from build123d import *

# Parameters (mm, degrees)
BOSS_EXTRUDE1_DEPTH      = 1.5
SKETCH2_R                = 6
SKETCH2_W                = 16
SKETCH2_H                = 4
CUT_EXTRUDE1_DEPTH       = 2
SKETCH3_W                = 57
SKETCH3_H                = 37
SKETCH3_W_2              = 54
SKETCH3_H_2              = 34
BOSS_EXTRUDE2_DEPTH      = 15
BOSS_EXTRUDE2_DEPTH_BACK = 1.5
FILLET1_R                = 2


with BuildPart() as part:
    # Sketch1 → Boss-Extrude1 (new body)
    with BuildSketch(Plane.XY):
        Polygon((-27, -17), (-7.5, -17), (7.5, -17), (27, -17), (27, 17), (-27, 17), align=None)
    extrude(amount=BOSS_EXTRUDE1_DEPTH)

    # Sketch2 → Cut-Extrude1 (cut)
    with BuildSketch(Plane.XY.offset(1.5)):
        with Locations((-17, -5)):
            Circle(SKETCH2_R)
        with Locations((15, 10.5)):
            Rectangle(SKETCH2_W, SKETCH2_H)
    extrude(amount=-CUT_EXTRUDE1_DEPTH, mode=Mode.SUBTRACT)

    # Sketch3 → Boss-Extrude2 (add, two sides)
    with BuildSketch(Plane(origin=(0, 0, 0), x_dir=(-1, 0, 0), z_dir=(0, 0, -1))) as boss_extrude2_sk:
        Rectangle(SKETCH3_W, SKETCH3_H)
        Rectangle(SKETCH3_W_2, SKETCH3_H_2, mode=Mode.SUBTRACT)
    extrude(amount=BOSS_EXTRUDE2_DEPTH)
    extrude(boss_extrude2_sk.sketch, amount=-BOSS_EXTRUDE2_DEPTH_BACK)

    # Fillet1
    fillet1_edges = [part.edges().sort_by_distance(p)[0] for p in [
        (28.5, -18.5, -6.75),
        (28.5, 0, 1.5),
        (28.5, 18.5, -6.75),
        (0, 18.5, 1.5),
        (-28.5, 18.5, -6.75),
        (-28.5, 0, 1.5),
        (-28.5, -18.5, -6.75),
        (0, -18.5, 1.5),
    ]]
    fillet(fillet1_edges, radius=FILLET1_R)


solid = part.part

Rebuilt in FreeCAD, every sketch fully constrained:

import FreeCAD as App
import Part
import Sketcher
from FreeCAD import Vector


def edges_at(feature, points):
    """Names of the edges that pass closest to the given points."""
    edges = feature.Shape.Edges
    near = lambda p: min(range(len(edges)), key=lambda i: edges[i].distToShape(Part.Vertex(*p))[0])
    return sorted({f"Edge{near(p) + 1}" for p in points})

doc = App.newDocument("Part")
body = doc.addObject("PartDesign::Body", "Body")

# Sketch on XY plane
sketch1 = body.newObject("Sketcher::SketchObject", "Sketch")
sketch1.AttachmentSupport = (doc.getObject("XY_Plane"), [""])
sketch1.MapMode = "FlatFace"
sketch1.addGeometry([
    Part.LineSegment(Vector(-27, -17, 0), Vector(27, -17, 0)),
    Part.LineSegment(Vector(27, -17, 0), Vector(27, 17, 0)),
    Part.LineSegment(Vector(27, 17, 0), Vector(-27, 17, 0)),
    Part.LineSegment(Vector(-27, 17, 0), Vector(-27, -17, 0)),
], False)
sketch1.addConstraint([
    Sketcher.Constraint("Coincident", 0, 2, 1, 1),
    Sketcher.Constraint("Coincident", 1, 2, 2, 1),
    Sketcher.Constraint("Coincident", 2, 2, 3, 1),
    Sketcher.Constraint("Coincident", 3, 2, 0, 1),
    Sketcher.Constraint("Horizontal", 0),
    Sketcher.Constraint("Vertical", 1),
    Sketcher.Constraint("Horizontal", 2),
    Sketcher.Constraint("Vertical", 3),
    Sketcher.Constraint("Symmetric", 0, 2, 2, 2, -1, 1),
    Sketcher.Constraint("DistanceX", 0, 1, 0, 2, 54.0),
    Sketcher.Constraint("DistanceY", 1, 1, 1, 2, 34.0),
])
pad1 = body.newObject("PartDesign::Pad", "Pad")
pad1.Profile = sketch1
pad1.Length = 1.5

# Sketch on XY plane
sketch2 = body.newObject("Sketcher::SketchObject", "Sketch001")
sketch2.AttachmentSupport = (doc.getObject("XY_Plane"), [""])
sketch2.MapMode = "FlatFace"
sketch2.AttachmentOffset = App.Placement(Vector(0, 0, 1.5), App.Rotation())
sketch2.addGeometry([
    Part.Circle(Vector(-17, -5, 0), Vector(0, 0, 1), 6),  # 0
    Part.LineSegment(Vector(7, 12.5, 0), Vector(7, 8.5, 0)),  # 1
    Part.LineSegment(Vector(7, 8.5, 0), Vector(23, 8.5, 0)),  # 2
    Part.LineSegment(Vector(23, 8.5, 0), Vector(23, 12.5, 0)),  # 3
    Part.LineSegment(Vector(23, 12.5, 0), Vector(7, 12.5, 0)),  # 4
], False)
sketch2.addConstraint([
    Sketcher.Constraint("Coincident", 1, 2, 2, 1),
    Sketcher.Constraint("Coincident", 2, 2, 3, 1),
    Sketcher.Constraint("Coincident", 3, 2, 4, 1),
    Sketcher.Constraint("Coincident", 4, 2, 1, 1),
    Sketcher.Constraint("Vertical", 1),
    Sketcher.Constraint("Horizontal", 2),
    Sketcher.Constraint("Vertical", 3),
    Sketcher.Constraint("Horizontal", 4),
    Sketcher.Constraint("Diameter", 0, 12.0),
    Sketcher.Constraint("DistanceX", 2, 1, 2, 2, 16.0),
    Sketcher.Constraint("DistanceY", 1, 2, 1, 1, 4.0),
    Sketcher.Constraint("DistanceX", 0, 3, -1, 1, 17.0),
    Sketcher.Constraint("DistanceY", 0, 3, -1, 1, 5.0),
    Sketcher.Constraint("DistanceX", -1, 1, 1, 2, 7.0),
    Sketcher.Constraint("DistanceY", -1, 1, 1, 2, 8.5),
])
pocket1 = body.newObject("PartDesign::Pocket", "Pocket")
pocket1.Profile = sketch2
pocket1.Length = 2

# Sketch on XY plane
sketch3 = body.newObject("Sketcher::SketchObject", "Sketch002")
sketch3.AttachmentSupport = (doc.getObject("XY_Plane"), [""])
sketch3.MapMode = "FlatFace"
sketch3.addGeometry([
    Part.LineSegment(Vector(28, 18, 0), Vector(28, -18, 0)),  # 0
    Part.LineSegment(Vector(28, -18, 0), Vector(-28, -18, 0)),  # 1
    Part.LineSegment(Vector(-28, -18, 0), Vector(-28, 18, 0)),  # 2
    Part.LineSegment(Vector(-28, 18, 0), Vector(28, 18, 0)),  # 3
    Part.LineSegment(Vector(-27, -17, 0), Vector(27, -17, 0)),  # 4
    Part.LineSegment(Vector(27, -17, 0), Vector(27, 17, 0)),  # 5
    Part.LineSegment(Vector(27, 17, 0), Vector(-27, 17, 0)),  # 6
    Part.LineSegment(Vector(-27, 17, 0), Vector(-27, -17, 0)),  # 7
], False)
sketch3.addConstraint([
    Sketcher.Constraint("Coincident", 0, 2, 1, 1),
    Sketcher.Constraint("Coincident", 1, 2, 2, 1),
    Sketcher.Constraint("Coincident", 2, 2, 3, 1),
    Sketcher.Constraint("Coincident", 3, 2, 0, 1),
    Sketcher.Constraint("Coincident", 4, 2, 5, 1),
    Sketcher.Constraint("Coincident", 5, 2, 6, 1),
    Sketcher.Constraint("Coincident", 6, 2, 7, 1),
    Sketcher.Constraint("Coincident", 7, 2, 4, 1),
    Sketcher.Constraint("Vertical", 0),
    Sketcher.Constraint("Horizontal", 1),
    Sketcher.Constraint("Vertical", 2),
    Sketcher.Constraint("Horizontal", 3),
    Sketcher.Constraint("Horizontal", 4),
    Sketcher.Constraint("Vertical", 5),
    Sketcher.Constraint("Horizontal", 6),
    Sketcher.Constraint("Vertical", 7),
    Sketcher.Constraint("Symmetric", 0, 2, 2, 2, -1, 1),
    Sketcher.Constraint("Symmetric", 4, 2, 6, 2, -1, 1),
    Sketcher.Constraint("DistanceX", 1, 2, 1, 1, 57.0),
    Sketcher.Constraint("DistanceX", 4, 1, 4, 2, 54.0),
    Sketcher.Constraint("DistanceY", 0, 2, 0, 1, 37.0),
    Sketcher.Constraint("DistanceY", 5, 1, 5, 2, 34.0),
])
pad2 = body.newObject("PartDesign::Pad", "Pad001")
pad2.Profile = sketch3
pad2.Type = "TwoLengths"
pad2.Length = 15
pad2.Length2 = 1.5
pad2.Reversed = True
doc.recompute()

fillet = body.newObject("PartDesign::Fillet", "Fillet")
fillet.Base = (pad2, edges_at(pad2, [
    (28.5, -18.5, -6.75),
    (28.5, 0, 1.5),
    (28.5, 18.5, -6.75),
    (0, 18.5, 1.5),
    (-28.5, 18.5, -6.75),
    (-28.5, 0, 1.5),
    (-28.5, -18.5, -6.75),
    (0, -18.5, 1.5),
]))
fillet.Radius = 2

doc.recompute()
